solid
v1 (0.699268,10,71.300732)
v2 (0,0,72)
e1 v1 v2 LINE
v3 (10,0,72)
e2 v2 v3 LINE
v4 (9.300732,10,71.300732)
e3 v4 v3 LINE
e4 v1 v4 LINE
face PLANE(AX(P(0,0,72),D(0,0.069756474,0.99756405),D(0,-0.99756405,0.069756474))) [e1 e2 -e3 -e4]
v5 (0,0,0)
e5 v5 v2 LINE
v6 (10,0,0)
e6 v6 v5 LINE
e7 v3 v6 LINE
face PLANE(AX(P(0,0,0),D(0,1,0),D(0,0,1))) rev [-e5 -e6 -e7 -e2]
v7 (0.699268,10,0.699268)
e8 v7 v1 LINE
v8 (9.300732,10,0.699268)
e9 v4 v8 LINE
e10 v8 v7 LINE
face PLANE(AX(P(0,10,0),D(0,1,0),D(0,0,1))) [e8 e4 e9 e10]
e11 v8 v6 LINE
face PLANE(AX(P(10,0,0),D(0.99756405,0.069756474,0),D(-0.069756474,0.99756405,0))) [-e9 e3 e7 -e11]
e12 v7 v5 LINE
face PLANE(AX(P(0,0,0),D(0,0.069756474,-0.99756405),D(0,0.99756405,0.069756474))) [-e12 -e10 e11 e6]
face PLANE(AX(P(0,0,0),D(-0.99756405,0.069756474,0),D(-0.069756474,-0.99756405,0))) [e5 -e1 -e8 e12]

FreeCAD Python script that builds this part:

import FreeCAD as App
import Part
import Sketcher

V = App.Vector


def add_polygon(sketch, points):
    """Adds a closed chain of lines whose ends are joined by coincident constraints."""
    first, n = sketch.GeometryCount, len(points)
    for a, b in zip(points, points[1:] + points[:1]):
        sketch.addGeometry(Part.LineSegment(App.Vector(*a, 0), App.Vector(*b, 0)), False)
    for i in range(n):
        sketch.addConstraint(Sketcher.Constraint("Coincident", first + i, 2, first + (i + 1) % n, 1))

doc = App.newDocument("Part")
params = doc.addObject("Spreadsheet::Sheet", "Params")
for row, (alias, value) in enumerate([
    ("sketch1_width", "10 mm"),
    ("sketch1_height", "72 mm"),
    ("pad1_length", "10 mm"),
    ("pad1_taper", "-4 deg"),
], start=1):
    params.set(f"A{row}", alias)
    params.set(f"B{row}", "=" + value)
    params.setAlias(f"B{row}", alias)

body = doc.addObject("PartDesign::Body", "Body")

# Sketch on XZ plane
sketch1 = doc.addObject("Sketcher::SketchObject", "Sketch")
body.addObject(sketch1)
sketch1.AttachmentSupport = (doc.XZ_Plane, [""])
sketch1.MapMode = "FlatFace"
add_polygon(sketch1, [(0, 0), (0, 72), (10, 72), (10, 0)])  # lines 0-3
sketch1.addConstraint([
    Sketcher.Constraint("Vertical", 0),
    Sketcher.Constraint("Horizontal", 1),
    Sketcher.Constraint("Vertical", 2),
    Sketcher.Constraint("Horizontal", 3),
    Sketcher.Constraint("Coincident", 3, 2, -1, 1),
    Sketcher.Constraint("DistanceX", 1, 1, 1, 2, 10.0),
    Sketcher.Constraint("DistanceY", 0, 1, 0, 2, 72.0),
])
sketch1.setExpression("Constraints[9]", "Params.sketch1_width")
sketch1.setExpression("Constraints[10]", "Params.sketch1_height")
pad1 = doc.addObject("PartDesign::Pad", "Pad")
body.addObject(pad1)
pad1.Profile = sketch1
pad1.setExpression("Length", "Params.pad1_length")
pad1.Reversed = True
pad1.setExpression("TaperAngle", "Params.pad1_taper")

doc.recompute()
